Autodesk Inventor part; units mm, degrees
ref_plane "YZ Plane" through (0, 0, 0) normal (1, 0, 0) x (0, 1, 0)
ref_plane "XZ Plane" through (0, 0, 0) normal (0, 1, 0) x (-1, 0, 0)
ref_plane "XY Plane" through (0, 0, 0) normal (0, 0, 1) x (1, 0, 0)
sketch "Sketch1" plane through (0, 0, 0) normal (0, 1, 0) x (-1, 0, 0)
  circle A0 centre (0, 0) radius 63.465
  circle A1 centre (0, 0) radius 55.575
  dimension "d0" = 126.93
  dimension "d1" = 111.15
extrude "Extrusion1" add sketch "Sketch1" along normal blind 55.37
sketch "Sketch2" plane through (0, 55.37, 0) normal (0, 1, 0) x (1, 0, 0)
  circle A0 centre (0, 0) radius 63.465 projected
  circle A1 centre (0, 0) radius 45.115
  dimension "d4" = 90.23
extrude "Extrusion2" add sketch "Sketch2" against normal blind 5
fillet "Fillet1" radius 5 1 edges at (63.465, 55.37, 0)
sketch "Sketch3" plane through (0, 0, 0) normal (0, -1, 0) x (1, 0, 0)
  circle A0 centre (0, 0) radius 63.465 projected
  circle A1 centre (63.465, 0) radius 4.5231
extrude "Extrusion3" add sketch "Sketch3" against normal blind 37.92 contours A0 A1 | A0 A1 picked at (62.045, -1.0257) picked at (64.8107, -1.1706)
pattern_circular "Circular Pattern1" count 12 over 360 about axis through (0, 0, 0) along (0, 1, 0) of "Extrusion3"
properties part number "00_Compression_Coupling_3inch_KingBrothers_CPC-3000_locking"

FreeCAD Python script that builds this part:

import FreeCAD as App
import Part
import Sketcher

V = App.Vector
Q = App.Units.Quantity


def edges_at(feature, points):
    """Names of the edges that pass closest to the given points."""
    edges = feature.Shape.Edges
    near = lambda p: min(range(len(edges)), key=lambda i: edges[i].distToShape(Part.Vertex(*p))[0])
    return sorted({f"Edge{near(p) + 1}" for p in points})

doc = App.newDocument("Part")
body = doc.addObject("PartDesign::Body", "Body")

sketch1 = body.newObject("Sketcher::SketchObject", "Sketch")
sketch1.AttachmentSupport = (doc.getObject("XZ_Plane"), [""])
sketch1.MapMode = "FlatFace"
sketch1.addGeometry([
    Part.Circle(V(0, 0, 0), V(0, 0, 1), 63),
    Part.Circle(V(0, 0, 0), V(0, 0, 1), 56),
], False)
sketch1.addConstraint([
    Sketcher.Constraint("Coincident", 0, 3, -1, 1),
    Sketcher.Constraint("Coincident", 1, 3, -1, 1),
    Sketcher.Constraint("Diameter", 0, Q("126.93 mm")),
    Sketcher.Constraint("Diameter", 1, Q("111.15 mm")),
])
pad1 = body.newObject("PartDesign::Pad", "Pad")
pad1.Profile = sketch1
pad1.Length = 55.37
pad1.Reversed = True

sketch2 = body.newObject("Sketcher::SketchObject", "Sketch001")
sketch2.AttachmentSupport = (doc.getObject("XZ_Plane"), [""])
sketch2.MapMode = "FlatFace"
sketch2.AttachmentOffset = App.Placement(V(0, 0, -55.37), App.Rotation())
sketch2.addGeometry([
    Part.Circle(V(0, 0, 0), V(0, 0, 1), 63),
    Part.Circle(V(0, 0, 0), V(0, 0, 1), 45),
], False)
sketch2.addConstraint([
    Sketcher.Constraint("Coincident", 0, 3, -1, 1),
    Sketcher.Constraint("Coincident", 1, 3, -1, 1),
    Sketcher.Constraint("Diameter", 1, Q("90.23 mm")),
    Sketcher.Constraint("Diameter", 0, Q("126.93 mm")),
])
pad2 = body.newObject("PartDesign::Pad", "Pad001")
pad2.Profile = sketch2
pad2.Length = 5
doc.recompute()

fillet = body.newObject("PartDesign::Fillet", "Fillet")
fillet.Base = (pad2, edges_at(pad2, [(63.465, 55.37, 0)]))
fillet.Radius = 5

sketch3 = body.newObject("Sketcher::SketchObject", "Sketch002")
sketch3.AttachmentSupport = (doc.getObject("XZ_Plane"), [""])
sketch3.MapMode = "FlatFace"
sketch3.addGeometry(Part.Circle(V(63.5, 0, 0), V(0, 0, 1), 4.5), False)
sketch3.addConstraint([
    Sketcher.Constraint("PointOnObject", 0, 3, -1),
    Sketcher.Constraint("Diameter", 0, Q("9.0462 mm")),
    Sketcher.Constraint("DistanceX", -1, 1, 0, 3, Q("63.465 mm")),
])
pad3 = body.newObject("PartDesign::Pad", "Pad002")
pad3.Profile = sketch3
pad3.Length = 37.92
pad3.Reversed = True
doc.recompute()

polarpattern = body.newObject("PartDesign::PolarPattern", "PolarPattern")
polarpattern.Originals = [pad3]
polarpattern.Axis = (doc.getObject("Y_Axis"), [""])
polarpattern.Angle = 360
polarpattern.Occurrences = 12
body.Tip = polarpattern

doc.recompute()
